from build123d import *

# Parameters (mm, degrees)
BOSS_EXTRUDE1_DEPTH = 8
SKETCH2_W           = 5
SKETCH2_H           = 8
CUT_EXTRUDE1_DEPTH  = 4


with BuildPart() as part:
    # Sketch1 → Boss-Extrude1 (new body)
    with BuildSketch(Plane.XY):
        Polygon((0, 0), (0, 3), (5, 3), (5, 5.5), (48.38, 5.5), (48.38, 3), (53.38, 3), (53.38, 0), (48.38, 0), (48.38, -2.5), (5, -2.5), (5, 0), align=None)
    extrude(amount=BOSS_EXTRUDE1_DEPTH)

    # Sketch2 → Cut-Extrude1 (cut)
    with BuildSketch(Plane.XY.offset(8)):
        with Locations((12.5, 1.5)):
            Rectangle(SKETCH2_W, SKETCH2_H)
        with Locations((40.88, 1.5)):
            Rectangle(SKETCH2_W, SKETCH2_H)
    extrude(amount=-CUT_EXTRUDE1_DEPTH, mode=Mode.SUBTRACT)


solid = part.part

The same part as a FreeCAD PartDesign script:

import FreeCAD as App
import Part
import Sketcher
Q = App.Units.Quantity

doc = App.newDocument("Part")
body = doc.addObject("PartDesign::Body", "Body")

sketch1 = doc.addObject("Sketcher::SketchObject", "Sketch")
body.addObject(sketch1)
sketch1.AttachmentSupport = (doc.XY_Plane, [""])
sketch1.MapMode = "FlatFace"
sketch1.addGeometry(Part.LineSegment(App.Vector(0, 3, 0), App.Vector(0, 0, 0)), False)
sketch1.addGeometry(Part.LineSegment(App.Vector(0, 0, 0), App.Vector(5, 0, 0)), False)
sketch1.addGeometry(Part.LineSegment(App.Vector(5, 0, 0), App.Vector(5, -2.5, 0)), False)
sketch1.addGeometry(Part.LineSegment(App.Vector(5, -2.5, 0), App.Vector(48.38, -2.5, 0)), False)
sketch1.addGeometry(Part.LineSegment(App.Vector(48.38, -2.5, 0), App.Vector(48.38, 0, 0)), False)
sketch1.addGeometry(Part.LineSegment(App.Vector(48.38, 0, 0), App.Vector(53.38, 0, 0)), False)
sketch1.addGeometry(Part.LineSegment(App.Vector(53.38, 0, 0), App.Vector(53.38, 3, 0)), False)
sketch1.addGeometry(Part.LineSegment(App.Vector(53.38, 3, 0), App.Vector(48.38, 3, 0)), False)
sketch1.addGeometry(Part.LineSegment(App.Vector(48.38, 3, 0), App.Vector(48.38, 5.5, 0)), False)
sketch1.addGeometry(Part.LineSegment(App.Vector(48.38, 5.5, 0), App.Vector(5, 5.5, 0)), False)
sketch1.addGeometry(Part.LineSegment(App.Vector(5, 5.5, 0), App.Vector(5, 3, 0)), False)
sketch1.addGeometry(Part.LineSegment(App.Vector(5, 3, 0), App.Vector(0, 3, 0)), False)
sketch1.addConstraint(Sketcher.Constraint("Coincident", 0, 2, 1, 1))
sketch1.addConstraint(Sketcher.Constraint("Coincident", 1, 2, 2, 1))
sketch1.addConstraint(Sketcher.Constraint("Coincident", 2, 2, 3, 1))
sketch1.addConstraint(Sketcher.Constraint("Coincident", 3, 2, 4, 1))
sketch1.addConstraint(Sketcher.Constraint("Coincident", 4, 2, 5, 1))
sketch1.addConstraint(Sketcher.Constraint("Coincident", 5, 2, 6, 1))
sketch1.addConstraint(Sketcher.Constraint("Coincident", 6, 2, 7, 1))
sketch1.addConstraint(Sketcher.Constraint("Coincident", 7, 2, 8, 1))
sketch1.addConstraint(Sketcher.Constraint("Coincident", 8, 2, 9, 1))
sketch1.addConstraint(Sketcher.Constraint("Coincident", 9, 2, 10, 1))
sketch1.addConstraint(Sketcher.Constraint("Coincident", 10, 2, 11, 1))
sketch1.addConstraint(Sketcher.Constraint("Coincident", 11, 2, 0, 1))
sketch1.addConstraint(Sketcher.Constraint("Vertical", 0))
sketch1.addConstraint(Sketcher.Constraint("Horizontal", 1))
sketch1.addConstraint(Sketcher.Constraint("Vertical", 2))
sketch1.addConstraint(Sketcher.Constraint("Horizontal", 3))
sketch1.addConstraint(Sketcher.Constraint("Vertical", 4))
sketch1.addConstraint(Sketcher.Constraint("Horizontal", 5))
sketch1.addConstraint(Sketcher.Constraint("Vertical", 6))
sketch1.addConstraint(Sketcher.Constraint("Horizontal", 7))
sketch1.addConstraint(Sketcher.Constraint("Vertical", 8))
sketch1.addConstraint(Sketcher.Constraint("Horizontal", 9))
sketch1.addConstraint(Sketcher.Constraint("Vertical", 10))
sketch1.addConstraint(Sketcher.Constraint("Horizontal", 11))
sketch1.addConstraint(Sketcher.Constraint("Coincident", 0, 2, -1, 1))
sketch1.addConstraint(Sketcher.Constraint("PointOnObject", 4, 2, -1))
sketch1.addConstraint(Sketcher.Constraint("Horizontal", 7, 2, 10, 2))
sketch1.addConstraint(Sketcher.Constraint("Vertical", 4, 2, 7, 2))
sketch1.addConstraint(Sketcher.Constraint("Vertical", 2, 2, 9, 2))
sketch1.addConstraint(Sketcher.Constraint("Equal", 1, 5))
sketch1.addConstraint(Sketcher.Constraint("Equal", 4, 8))
sketch1.addConstraint(Sketcher.Constraint("DistanceX", 1, 1, 1, 2, Q("5 mm")))
sketch1.addConstraint(Sketcher.Constraint("DistanceY", 0, 2, 0, 1, Q("3 mm")))
sketch1.addConstraint(Sketcher.Constraint("DistanceY", 2, 2, 2, 1, Q("2.5 mm")))
sketch1.addConstraint(Sketcher.Constraint("DistanceX", 3, 1, 3, 2, Q("43.38 mm")))
pad1 = doc.addObject("PartDesign::Pad", "Pad")
body.addObject(pad1)
pad1.Profile = sketch1
pad1.Length = 8

sketch2 = doc.addObject("Sketcher::SketchObject", "Sketch001")
body.addObject(sketch2)
sketch2.AttachmentSupport = (doc.XY_Plane, [""])
sketch2.MapMode = "FlatFace"
sketch2.AttachmentOffset = App.Placement(App.Vector(0, 0, 8), App.Rotation())
sketch2.addGeometry(Part.LineSegment(App.Vector(10, 5.5, 0), App.Vector(10, -2.5, 0)), False)
sketch2.addGeometry(Part.LineSegment(App.Vector(10, -2.5, 0), App.Vector(15, -2.5, 0)), False)
sketch2.addGeometry(Part.LineSegment(App.Vector(15, -2.5, 0), App.Vector(15, 5.5, 0)), False)
sketch2.addGeometry(Part.LineSegment(App.Vector(15, 5.5, 0), App.Vector(10, 5.5, 0)), False)
sketch2.addGeometry(Part.LineSegment(App.Vector(38.38, 5.5, 0), App.Vector(38.38, -2.5, 0)), False)
sketch2.addGeometry(Part.LineSegment(App.Vector(38.38, -2.5, 0), App.Vector(43.38, -2.5, 0)), False)
sketch2.addGeometry(Part.LineSegment(App.Vector(43.38, -2.5, 0), App.Vector(43.38, 5.5, 0)), False)
sketch2.addGeometry(Part.LineSegment(App.Vector(43.38, 5.5, 0), App.Vector(38.38, 5.5, 0)), False)
sketch2.addConstraint(Sketcher.Constraint("Coincident", 0, 2, 1, 1))
sketch2.addConstraint(Sketcher.Constraint("Coincident", 1, 2, 2, 1))
sketch2.addConstraint(Sketcher.Constraint("Coincident", 2, 2, 3, 1))
sketch2.addConstraint(Sketcher.Constraint("Coincident", 3, 2, 0, 1))
sketch2.addConstraint(Sketcher.Constraint("Coincident", 4, 2, 5, 1))
sketch2.addConstraint(Sketcher.Constraint("Coincident", 5, 2, 6, 1))
sketch2.addConstraint(Sketcher.Constraint("Coincident", 6, 2, 7, 1))
sketch2.addConstraint(Sketcher.Constraint("Coincident", 7, 2, 4, 1))
sketch2.addConstraint(Sketcher.Constraint("Vertical", 0))
sketch2.addConstraint(Sketcher.Constraint("Horizontal", 1))
sketch2.addConstraint(Sketcher.Constraint("Vertical", 2))
sketch2.addConstraint(Sketcher.Constraint("Horizontal", 3))
sketch2.addConstraint(Sketcher.Constraint("Vertical", 4))
sketch2.addConstraint(Sketcher.Constraint("Horizontal", 5))
sketch2.addConstraint(Sketcher.Constraint("Vertical", 6))
sketch2.addConstraint(Sketcher.Constraint("Horizontal", 7))
sketch2.addConstraint(Sketcher.Constraint("Horizontal", 1, 2, 4, 2))
sketch2.addConstraint(Sketcher.Constraint("Horizontal", 3, 2, 6, 2))
sketch2.addConstraint(Sketcher.Constraint("Equal", 3, 5))
sketch2.addConstraint(Sketcher.Constraint("DistanceX", 1, 1, 1, 2, Q("5 mm")))
sketch2.addConstraint(Sketcher.Constraint("DistanceY", 0, 2, 0, 1, Q("8 mm")))
sketch2.addConstraint(Sketcher.Constraint("DistanceX", -1, 1, 0, 2, Q("10 mm")))
sketch2.addConstraint(Sketcher.Constraint("DistanceY", 0, 2, -1, 1, Q("2.5 mm")))
sketch2.addConstraint(Sketcher.Constraint("DistanceX", -1, 1, 4, 2, Q("38.38 mm")))
pocket1 = doc.addObject("PartDesign::Pocket", "Pocket")
body.addObject(pocket1)
pocket1.Profile = sketch2
pocket1.Length = 4

doc.recompute()
